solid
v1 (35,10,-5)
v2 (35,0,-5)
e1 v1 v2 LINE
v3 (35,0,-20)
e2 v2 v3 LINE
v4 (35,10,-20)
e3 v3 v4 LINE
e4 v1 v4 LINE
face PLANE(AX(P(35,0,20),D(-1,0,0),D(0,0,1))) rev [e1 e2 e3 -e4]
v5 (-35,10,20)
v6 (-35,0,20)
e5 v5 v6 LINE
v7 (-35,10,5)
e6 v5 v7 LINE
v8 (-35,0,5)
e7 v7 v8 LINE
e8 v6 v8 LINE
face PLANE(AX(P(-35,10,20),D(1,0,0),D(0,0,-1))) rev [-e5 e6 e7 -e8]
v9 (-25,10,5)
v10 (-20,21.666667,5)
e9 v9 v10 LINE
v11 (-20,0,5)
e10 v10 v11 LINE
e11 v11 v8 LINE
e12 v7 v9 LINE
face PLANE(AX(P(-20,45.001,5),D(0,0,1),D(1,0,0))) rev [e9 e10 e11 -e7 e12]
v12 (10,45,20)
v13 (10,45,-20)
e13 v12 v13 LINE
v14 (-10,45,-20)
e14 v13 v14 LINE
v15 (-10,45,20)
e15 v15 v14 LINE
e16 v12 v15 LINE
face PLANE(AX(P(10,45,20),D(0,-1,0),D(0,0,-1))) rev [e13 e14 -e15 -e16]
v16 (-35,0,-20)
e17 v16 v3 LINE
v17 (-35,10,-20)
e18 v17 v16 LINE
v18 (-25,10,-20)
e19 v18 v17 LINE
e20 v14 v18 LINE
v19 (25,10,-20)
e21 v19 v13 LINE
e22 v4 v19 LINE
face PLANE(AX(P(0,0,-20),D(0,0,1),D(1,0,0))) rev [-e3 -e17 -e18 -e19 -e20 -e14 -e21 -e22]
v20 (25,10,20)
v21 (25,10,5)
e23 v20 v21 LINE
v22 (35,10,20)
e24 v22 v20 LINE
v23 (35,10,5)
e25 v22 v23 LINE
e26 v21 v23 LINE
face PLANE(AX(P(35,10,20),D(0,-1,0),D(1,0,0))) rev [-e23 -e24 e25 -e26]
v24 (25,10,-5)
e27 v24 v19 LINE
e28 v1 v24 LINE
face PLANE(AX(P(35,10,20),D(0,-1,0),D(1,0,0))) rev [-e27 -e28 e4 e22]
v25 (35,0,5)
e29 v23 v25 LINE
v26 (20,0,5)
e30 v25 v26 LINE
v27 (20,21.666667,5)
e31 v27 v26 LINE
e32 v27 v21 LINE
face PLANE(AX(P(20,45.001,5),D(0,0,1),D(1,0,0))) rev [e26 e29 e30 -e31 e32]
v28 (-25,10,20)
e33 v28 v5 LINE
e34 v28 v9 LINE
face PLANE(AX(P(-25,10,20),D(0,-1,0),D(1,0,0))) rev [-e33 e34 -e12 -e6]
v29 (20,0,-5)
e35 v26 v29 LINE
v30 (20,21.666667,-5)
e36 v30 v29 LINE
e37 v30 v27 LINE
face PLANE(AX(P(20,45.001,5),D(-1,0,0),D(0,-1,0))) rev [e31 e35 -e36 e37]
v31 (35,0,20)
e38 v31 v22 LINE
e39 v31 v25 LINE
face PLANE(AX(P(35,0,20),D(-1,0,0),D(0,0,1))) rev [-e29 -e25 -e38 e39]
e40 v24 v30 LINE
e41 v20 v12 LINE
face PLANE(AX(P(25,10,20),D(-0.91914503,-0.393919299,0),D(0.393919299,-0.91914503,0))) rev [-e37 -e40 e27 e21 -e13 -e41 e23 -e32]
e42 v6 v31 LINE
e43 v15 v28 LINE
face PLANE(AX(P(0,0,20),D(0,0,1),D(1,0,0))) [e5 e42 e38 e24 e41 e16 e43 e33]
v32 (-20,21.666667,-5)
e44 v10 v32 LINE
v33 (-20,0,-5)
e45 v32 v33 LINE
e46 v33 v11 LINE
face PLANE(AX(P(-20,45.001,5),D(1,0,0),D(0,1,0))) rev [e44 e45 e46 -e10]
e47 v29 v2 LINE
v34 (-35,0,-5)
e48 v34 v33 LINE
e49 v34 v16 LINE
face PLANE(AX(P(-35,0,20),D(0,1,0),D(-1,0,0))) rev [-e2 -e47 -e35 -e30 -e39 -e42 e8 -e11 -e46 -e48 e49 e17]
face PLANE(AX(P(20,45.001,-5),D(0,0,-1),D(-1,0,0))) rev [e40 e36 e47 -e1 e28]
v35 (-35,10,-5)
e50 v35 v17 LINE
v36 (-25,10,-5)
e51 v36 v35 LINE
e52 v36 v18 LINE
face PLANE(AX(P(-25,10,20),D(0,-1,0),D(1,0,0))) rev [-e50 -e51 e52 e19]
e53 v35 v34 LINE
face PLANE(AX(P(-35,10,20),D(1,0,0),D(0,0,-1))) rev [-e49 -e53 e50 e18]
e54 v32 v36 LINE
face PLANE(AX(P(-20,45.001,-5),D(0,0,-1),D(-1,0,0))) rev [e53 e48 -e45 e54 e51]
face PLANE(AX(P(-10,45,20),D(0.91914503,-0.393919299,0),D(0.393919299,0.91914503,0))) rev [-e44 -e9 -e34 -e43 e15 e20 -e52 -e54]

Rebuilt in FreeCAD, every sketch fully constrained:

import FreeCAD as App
import Part
import Sketcher
Q = App.Units.Quantity


def add_polygon(sketch, points):
    """Adds a closed chain of lines whose ends are joined by coincident constraints."""
    first, n = sketch.GeometryCount, len(points)
    for a, b in zip(points, points[1:] + points[:1]):
        sketch.addGeometry(Part.LineSegment(App.Vector(*a, 0), App.Vector(*b, 0)), False)
    for i in range(n):
        sketch.addConstraint(Sketcher.Constraint("Coincident", first + i, 2, first + (i + 1) % n, 1))

doc = App.newDocument("Part")
params = doc.addObject("Spreadsheet::Sheet", "Params")
for row, (alias, value) in enumerate([
    ("sketch1_width", "70 mm"),
    ("sketch1_width2", "10 mm"),
    ("sketch1_width3", "20 mm"),
    ("pad1_length", "40 mm"),
    ("sketch2_width", "15 mm"),
    ("sketch2_height", "10 mm"),
    ("pocket1_length", "21.666667 mm"),
    ("sketch3_width", "15 mm"),
    ("sketch3_height", "10 mm"),
    ("pocket2_length", "21.666667 mm"),
], start=1):
    params.set(f"A{row}", alias)
    params.set(f"B{row}", "=" + value)
    params.setAlias(f"B{row}", alias)

body = doc.addObject("PartDesign::Body", "Body")

sketch1 = body.newObject("Sketcher::SketchObject", "Sketch")
sketch1.AttachmentSupport = (doc.getObject("XY_Plane"), [""])
sketch1.MapMode = "FlatFace"
add_polygon(sketch1, [(-35, 0), (35, 0), (35, 10), (25, 10), (10, 45), (-10, 45), (-25, 10), (-35, 10)])
sketch1.addConstraint(Sketcher.Constraint("Horizontal", 0))
sketch1.addConstraint(Sketcher.Constraint("Vertical", 1))
sketch1.addConstraint(Sketcher.Constraint("Horizontal", 2))
sketch1.addConstraint(Sketcher.Constraint("Horizontal", 4))
sketch1.addConstraint(Sketcher.Constraint("Horizontal", 6))
sketch1.addConstraint(Sketcher.Constraint("Vertical", 7))
sketch1.addConstraint(Sketcher.Constraint("Symmetric", 0, 2, 7, 2, -1, 1))
sketch1.addConstraint(Sketcher.Constraint("Symmetric", 2, 2, 5, 2, -2))
sketch1.addConstraint(Sketcher.Constraint("Equal", 6, 1))
sketch1.addConstraint(Sketcher.Constraint("Equal", 3, 5))
sketch1.addConstraint(Sketcher.Constraint("DistanceX", 0, 1, 0, 2, Q("70 mm")))
sketch1.addConstraint(Sketcher.Constraint("DistanceX", 2, 2, 2, 1, Q("10 mm")))
sketch1.addConstraint(Sketcher.Constraint("DistanceX", 4, 2, 4, 1, Q("20 mm")))
sketch1.addConstraint(Sketcher.Constraint("DistanceY", -1, 1, 3, 2, Q("45 mm")))
sketch1.setExpression("Constraints[18]", "Params.sketch1_width")
sketch1.setExpression("Constraints[19]", "Params.sketch1_width2")
sketch1.setExpression("Constraints[20]", "Params.sketch1_width3")
pad1 = body.newObject("PartDesign::Pad", "Pad")
pad1.Profile = sketch1
pad1.setExpression("Length", "Params.pad1_length")
pad1.Midplane = True

sketch2 = body.newObject("Sketcher::SketchObject", "Sketch001")
sketch2.AttachmentSupport = (doc.getObject("XZ_Plane"), [""])
sketch2.MapMode = "FlatFace"
add_polygon(sketch2, [(20, 5), (20, -5), (35, -5), (35, 5)])
sketch2.addConstraint(Sketcher.Constraint("Vertical", 0))
sketch2.addConstraint(Sketcher.Constraint("Horizontal", 1))
sketch2.addConstraint(Sketcher.Constraint("Vertical", 2))
sketch2.addConstraint(Sketcher.Constraint("Horizontal", 3))
sketch2.addConstraint(Sketcher.Constraint("DistanceX", 1, 1, 1, 2, Q("15 mm")))
sketch2.addConstraint(Sketcher.Constraint("DistanceY", 0, 2, 0, 1, Q("10 mm")))
sketch2.addConstraint(Sketcher.Constraint("DistanceX", -1, 1, 0, 2, Q("20 mm")))
sketch2.addConstraint(Sketcher.Constraint("DistanceY", 0, 2, -1, 1, Q("5 mm")))
sketch2.setExpression("Constraints[8]", "Params.sketch2_width")
sketch2.setExpression("Constraints[9]", "Params.sketch2_height")
pocket1 = body.newObject("PartDesign::Pocket", "Pocket")
pocket1.Profile = sketch2
pocket1.setExpression("Length", "Params.pocket1_length")

sketch3 = body.newObject("Sketcher::SketchObject", "Sketch002")
sketch3.AttachmentSupport = (doc.getObject("XZ_Plane"), [""])
sketch3.MapMode = "FlatFace"
add_polygon(sketch3, [(-35, 5), (-35, -5), (-20, -5), (-20, 5)])
sketch3.addConstraint(Sketcher.Constraint("Vertical", 0))
sketch3.addConstraint(Sketcher.Constraint("Horizontal", 1))
sketch3.addConstraint(Sketcher.Constraint("Vertical", 2))
sketch3.addConstraint(Sketcher.Constraint("Horizontal", 3))
sketch3.addConstraint(Sketcher.Constraint("DistanceX", 1, 1, 1, 2, Q("15 mm")))
sketch3.addConstraint(Sketcher.Constraint("DistanceY", 0, 2, 0, 1, Q("10 mm")))
sketch3.addConstraint(Sketcher.Constraint("DistanceX", 0, 2, -1, 1, Q("35 mm")))
sketch3.addConstraint(Sketcher.Constraint("DistanceY", 0, 2, -1, 1, Q("5 mm")))
sketch3.setExpression("Constraints[8]", "Params.sketch3_width")
sketch3.setExpression("Constraints[9]", "Params.sketch3_height")
pocket2 = body.newObject("PartDesign::Pocket", "Pocket001")
pocket2.Profile = sketch3
pocket2.setExpression("Length", "Params.pocket2_length")

doc.recompute()
